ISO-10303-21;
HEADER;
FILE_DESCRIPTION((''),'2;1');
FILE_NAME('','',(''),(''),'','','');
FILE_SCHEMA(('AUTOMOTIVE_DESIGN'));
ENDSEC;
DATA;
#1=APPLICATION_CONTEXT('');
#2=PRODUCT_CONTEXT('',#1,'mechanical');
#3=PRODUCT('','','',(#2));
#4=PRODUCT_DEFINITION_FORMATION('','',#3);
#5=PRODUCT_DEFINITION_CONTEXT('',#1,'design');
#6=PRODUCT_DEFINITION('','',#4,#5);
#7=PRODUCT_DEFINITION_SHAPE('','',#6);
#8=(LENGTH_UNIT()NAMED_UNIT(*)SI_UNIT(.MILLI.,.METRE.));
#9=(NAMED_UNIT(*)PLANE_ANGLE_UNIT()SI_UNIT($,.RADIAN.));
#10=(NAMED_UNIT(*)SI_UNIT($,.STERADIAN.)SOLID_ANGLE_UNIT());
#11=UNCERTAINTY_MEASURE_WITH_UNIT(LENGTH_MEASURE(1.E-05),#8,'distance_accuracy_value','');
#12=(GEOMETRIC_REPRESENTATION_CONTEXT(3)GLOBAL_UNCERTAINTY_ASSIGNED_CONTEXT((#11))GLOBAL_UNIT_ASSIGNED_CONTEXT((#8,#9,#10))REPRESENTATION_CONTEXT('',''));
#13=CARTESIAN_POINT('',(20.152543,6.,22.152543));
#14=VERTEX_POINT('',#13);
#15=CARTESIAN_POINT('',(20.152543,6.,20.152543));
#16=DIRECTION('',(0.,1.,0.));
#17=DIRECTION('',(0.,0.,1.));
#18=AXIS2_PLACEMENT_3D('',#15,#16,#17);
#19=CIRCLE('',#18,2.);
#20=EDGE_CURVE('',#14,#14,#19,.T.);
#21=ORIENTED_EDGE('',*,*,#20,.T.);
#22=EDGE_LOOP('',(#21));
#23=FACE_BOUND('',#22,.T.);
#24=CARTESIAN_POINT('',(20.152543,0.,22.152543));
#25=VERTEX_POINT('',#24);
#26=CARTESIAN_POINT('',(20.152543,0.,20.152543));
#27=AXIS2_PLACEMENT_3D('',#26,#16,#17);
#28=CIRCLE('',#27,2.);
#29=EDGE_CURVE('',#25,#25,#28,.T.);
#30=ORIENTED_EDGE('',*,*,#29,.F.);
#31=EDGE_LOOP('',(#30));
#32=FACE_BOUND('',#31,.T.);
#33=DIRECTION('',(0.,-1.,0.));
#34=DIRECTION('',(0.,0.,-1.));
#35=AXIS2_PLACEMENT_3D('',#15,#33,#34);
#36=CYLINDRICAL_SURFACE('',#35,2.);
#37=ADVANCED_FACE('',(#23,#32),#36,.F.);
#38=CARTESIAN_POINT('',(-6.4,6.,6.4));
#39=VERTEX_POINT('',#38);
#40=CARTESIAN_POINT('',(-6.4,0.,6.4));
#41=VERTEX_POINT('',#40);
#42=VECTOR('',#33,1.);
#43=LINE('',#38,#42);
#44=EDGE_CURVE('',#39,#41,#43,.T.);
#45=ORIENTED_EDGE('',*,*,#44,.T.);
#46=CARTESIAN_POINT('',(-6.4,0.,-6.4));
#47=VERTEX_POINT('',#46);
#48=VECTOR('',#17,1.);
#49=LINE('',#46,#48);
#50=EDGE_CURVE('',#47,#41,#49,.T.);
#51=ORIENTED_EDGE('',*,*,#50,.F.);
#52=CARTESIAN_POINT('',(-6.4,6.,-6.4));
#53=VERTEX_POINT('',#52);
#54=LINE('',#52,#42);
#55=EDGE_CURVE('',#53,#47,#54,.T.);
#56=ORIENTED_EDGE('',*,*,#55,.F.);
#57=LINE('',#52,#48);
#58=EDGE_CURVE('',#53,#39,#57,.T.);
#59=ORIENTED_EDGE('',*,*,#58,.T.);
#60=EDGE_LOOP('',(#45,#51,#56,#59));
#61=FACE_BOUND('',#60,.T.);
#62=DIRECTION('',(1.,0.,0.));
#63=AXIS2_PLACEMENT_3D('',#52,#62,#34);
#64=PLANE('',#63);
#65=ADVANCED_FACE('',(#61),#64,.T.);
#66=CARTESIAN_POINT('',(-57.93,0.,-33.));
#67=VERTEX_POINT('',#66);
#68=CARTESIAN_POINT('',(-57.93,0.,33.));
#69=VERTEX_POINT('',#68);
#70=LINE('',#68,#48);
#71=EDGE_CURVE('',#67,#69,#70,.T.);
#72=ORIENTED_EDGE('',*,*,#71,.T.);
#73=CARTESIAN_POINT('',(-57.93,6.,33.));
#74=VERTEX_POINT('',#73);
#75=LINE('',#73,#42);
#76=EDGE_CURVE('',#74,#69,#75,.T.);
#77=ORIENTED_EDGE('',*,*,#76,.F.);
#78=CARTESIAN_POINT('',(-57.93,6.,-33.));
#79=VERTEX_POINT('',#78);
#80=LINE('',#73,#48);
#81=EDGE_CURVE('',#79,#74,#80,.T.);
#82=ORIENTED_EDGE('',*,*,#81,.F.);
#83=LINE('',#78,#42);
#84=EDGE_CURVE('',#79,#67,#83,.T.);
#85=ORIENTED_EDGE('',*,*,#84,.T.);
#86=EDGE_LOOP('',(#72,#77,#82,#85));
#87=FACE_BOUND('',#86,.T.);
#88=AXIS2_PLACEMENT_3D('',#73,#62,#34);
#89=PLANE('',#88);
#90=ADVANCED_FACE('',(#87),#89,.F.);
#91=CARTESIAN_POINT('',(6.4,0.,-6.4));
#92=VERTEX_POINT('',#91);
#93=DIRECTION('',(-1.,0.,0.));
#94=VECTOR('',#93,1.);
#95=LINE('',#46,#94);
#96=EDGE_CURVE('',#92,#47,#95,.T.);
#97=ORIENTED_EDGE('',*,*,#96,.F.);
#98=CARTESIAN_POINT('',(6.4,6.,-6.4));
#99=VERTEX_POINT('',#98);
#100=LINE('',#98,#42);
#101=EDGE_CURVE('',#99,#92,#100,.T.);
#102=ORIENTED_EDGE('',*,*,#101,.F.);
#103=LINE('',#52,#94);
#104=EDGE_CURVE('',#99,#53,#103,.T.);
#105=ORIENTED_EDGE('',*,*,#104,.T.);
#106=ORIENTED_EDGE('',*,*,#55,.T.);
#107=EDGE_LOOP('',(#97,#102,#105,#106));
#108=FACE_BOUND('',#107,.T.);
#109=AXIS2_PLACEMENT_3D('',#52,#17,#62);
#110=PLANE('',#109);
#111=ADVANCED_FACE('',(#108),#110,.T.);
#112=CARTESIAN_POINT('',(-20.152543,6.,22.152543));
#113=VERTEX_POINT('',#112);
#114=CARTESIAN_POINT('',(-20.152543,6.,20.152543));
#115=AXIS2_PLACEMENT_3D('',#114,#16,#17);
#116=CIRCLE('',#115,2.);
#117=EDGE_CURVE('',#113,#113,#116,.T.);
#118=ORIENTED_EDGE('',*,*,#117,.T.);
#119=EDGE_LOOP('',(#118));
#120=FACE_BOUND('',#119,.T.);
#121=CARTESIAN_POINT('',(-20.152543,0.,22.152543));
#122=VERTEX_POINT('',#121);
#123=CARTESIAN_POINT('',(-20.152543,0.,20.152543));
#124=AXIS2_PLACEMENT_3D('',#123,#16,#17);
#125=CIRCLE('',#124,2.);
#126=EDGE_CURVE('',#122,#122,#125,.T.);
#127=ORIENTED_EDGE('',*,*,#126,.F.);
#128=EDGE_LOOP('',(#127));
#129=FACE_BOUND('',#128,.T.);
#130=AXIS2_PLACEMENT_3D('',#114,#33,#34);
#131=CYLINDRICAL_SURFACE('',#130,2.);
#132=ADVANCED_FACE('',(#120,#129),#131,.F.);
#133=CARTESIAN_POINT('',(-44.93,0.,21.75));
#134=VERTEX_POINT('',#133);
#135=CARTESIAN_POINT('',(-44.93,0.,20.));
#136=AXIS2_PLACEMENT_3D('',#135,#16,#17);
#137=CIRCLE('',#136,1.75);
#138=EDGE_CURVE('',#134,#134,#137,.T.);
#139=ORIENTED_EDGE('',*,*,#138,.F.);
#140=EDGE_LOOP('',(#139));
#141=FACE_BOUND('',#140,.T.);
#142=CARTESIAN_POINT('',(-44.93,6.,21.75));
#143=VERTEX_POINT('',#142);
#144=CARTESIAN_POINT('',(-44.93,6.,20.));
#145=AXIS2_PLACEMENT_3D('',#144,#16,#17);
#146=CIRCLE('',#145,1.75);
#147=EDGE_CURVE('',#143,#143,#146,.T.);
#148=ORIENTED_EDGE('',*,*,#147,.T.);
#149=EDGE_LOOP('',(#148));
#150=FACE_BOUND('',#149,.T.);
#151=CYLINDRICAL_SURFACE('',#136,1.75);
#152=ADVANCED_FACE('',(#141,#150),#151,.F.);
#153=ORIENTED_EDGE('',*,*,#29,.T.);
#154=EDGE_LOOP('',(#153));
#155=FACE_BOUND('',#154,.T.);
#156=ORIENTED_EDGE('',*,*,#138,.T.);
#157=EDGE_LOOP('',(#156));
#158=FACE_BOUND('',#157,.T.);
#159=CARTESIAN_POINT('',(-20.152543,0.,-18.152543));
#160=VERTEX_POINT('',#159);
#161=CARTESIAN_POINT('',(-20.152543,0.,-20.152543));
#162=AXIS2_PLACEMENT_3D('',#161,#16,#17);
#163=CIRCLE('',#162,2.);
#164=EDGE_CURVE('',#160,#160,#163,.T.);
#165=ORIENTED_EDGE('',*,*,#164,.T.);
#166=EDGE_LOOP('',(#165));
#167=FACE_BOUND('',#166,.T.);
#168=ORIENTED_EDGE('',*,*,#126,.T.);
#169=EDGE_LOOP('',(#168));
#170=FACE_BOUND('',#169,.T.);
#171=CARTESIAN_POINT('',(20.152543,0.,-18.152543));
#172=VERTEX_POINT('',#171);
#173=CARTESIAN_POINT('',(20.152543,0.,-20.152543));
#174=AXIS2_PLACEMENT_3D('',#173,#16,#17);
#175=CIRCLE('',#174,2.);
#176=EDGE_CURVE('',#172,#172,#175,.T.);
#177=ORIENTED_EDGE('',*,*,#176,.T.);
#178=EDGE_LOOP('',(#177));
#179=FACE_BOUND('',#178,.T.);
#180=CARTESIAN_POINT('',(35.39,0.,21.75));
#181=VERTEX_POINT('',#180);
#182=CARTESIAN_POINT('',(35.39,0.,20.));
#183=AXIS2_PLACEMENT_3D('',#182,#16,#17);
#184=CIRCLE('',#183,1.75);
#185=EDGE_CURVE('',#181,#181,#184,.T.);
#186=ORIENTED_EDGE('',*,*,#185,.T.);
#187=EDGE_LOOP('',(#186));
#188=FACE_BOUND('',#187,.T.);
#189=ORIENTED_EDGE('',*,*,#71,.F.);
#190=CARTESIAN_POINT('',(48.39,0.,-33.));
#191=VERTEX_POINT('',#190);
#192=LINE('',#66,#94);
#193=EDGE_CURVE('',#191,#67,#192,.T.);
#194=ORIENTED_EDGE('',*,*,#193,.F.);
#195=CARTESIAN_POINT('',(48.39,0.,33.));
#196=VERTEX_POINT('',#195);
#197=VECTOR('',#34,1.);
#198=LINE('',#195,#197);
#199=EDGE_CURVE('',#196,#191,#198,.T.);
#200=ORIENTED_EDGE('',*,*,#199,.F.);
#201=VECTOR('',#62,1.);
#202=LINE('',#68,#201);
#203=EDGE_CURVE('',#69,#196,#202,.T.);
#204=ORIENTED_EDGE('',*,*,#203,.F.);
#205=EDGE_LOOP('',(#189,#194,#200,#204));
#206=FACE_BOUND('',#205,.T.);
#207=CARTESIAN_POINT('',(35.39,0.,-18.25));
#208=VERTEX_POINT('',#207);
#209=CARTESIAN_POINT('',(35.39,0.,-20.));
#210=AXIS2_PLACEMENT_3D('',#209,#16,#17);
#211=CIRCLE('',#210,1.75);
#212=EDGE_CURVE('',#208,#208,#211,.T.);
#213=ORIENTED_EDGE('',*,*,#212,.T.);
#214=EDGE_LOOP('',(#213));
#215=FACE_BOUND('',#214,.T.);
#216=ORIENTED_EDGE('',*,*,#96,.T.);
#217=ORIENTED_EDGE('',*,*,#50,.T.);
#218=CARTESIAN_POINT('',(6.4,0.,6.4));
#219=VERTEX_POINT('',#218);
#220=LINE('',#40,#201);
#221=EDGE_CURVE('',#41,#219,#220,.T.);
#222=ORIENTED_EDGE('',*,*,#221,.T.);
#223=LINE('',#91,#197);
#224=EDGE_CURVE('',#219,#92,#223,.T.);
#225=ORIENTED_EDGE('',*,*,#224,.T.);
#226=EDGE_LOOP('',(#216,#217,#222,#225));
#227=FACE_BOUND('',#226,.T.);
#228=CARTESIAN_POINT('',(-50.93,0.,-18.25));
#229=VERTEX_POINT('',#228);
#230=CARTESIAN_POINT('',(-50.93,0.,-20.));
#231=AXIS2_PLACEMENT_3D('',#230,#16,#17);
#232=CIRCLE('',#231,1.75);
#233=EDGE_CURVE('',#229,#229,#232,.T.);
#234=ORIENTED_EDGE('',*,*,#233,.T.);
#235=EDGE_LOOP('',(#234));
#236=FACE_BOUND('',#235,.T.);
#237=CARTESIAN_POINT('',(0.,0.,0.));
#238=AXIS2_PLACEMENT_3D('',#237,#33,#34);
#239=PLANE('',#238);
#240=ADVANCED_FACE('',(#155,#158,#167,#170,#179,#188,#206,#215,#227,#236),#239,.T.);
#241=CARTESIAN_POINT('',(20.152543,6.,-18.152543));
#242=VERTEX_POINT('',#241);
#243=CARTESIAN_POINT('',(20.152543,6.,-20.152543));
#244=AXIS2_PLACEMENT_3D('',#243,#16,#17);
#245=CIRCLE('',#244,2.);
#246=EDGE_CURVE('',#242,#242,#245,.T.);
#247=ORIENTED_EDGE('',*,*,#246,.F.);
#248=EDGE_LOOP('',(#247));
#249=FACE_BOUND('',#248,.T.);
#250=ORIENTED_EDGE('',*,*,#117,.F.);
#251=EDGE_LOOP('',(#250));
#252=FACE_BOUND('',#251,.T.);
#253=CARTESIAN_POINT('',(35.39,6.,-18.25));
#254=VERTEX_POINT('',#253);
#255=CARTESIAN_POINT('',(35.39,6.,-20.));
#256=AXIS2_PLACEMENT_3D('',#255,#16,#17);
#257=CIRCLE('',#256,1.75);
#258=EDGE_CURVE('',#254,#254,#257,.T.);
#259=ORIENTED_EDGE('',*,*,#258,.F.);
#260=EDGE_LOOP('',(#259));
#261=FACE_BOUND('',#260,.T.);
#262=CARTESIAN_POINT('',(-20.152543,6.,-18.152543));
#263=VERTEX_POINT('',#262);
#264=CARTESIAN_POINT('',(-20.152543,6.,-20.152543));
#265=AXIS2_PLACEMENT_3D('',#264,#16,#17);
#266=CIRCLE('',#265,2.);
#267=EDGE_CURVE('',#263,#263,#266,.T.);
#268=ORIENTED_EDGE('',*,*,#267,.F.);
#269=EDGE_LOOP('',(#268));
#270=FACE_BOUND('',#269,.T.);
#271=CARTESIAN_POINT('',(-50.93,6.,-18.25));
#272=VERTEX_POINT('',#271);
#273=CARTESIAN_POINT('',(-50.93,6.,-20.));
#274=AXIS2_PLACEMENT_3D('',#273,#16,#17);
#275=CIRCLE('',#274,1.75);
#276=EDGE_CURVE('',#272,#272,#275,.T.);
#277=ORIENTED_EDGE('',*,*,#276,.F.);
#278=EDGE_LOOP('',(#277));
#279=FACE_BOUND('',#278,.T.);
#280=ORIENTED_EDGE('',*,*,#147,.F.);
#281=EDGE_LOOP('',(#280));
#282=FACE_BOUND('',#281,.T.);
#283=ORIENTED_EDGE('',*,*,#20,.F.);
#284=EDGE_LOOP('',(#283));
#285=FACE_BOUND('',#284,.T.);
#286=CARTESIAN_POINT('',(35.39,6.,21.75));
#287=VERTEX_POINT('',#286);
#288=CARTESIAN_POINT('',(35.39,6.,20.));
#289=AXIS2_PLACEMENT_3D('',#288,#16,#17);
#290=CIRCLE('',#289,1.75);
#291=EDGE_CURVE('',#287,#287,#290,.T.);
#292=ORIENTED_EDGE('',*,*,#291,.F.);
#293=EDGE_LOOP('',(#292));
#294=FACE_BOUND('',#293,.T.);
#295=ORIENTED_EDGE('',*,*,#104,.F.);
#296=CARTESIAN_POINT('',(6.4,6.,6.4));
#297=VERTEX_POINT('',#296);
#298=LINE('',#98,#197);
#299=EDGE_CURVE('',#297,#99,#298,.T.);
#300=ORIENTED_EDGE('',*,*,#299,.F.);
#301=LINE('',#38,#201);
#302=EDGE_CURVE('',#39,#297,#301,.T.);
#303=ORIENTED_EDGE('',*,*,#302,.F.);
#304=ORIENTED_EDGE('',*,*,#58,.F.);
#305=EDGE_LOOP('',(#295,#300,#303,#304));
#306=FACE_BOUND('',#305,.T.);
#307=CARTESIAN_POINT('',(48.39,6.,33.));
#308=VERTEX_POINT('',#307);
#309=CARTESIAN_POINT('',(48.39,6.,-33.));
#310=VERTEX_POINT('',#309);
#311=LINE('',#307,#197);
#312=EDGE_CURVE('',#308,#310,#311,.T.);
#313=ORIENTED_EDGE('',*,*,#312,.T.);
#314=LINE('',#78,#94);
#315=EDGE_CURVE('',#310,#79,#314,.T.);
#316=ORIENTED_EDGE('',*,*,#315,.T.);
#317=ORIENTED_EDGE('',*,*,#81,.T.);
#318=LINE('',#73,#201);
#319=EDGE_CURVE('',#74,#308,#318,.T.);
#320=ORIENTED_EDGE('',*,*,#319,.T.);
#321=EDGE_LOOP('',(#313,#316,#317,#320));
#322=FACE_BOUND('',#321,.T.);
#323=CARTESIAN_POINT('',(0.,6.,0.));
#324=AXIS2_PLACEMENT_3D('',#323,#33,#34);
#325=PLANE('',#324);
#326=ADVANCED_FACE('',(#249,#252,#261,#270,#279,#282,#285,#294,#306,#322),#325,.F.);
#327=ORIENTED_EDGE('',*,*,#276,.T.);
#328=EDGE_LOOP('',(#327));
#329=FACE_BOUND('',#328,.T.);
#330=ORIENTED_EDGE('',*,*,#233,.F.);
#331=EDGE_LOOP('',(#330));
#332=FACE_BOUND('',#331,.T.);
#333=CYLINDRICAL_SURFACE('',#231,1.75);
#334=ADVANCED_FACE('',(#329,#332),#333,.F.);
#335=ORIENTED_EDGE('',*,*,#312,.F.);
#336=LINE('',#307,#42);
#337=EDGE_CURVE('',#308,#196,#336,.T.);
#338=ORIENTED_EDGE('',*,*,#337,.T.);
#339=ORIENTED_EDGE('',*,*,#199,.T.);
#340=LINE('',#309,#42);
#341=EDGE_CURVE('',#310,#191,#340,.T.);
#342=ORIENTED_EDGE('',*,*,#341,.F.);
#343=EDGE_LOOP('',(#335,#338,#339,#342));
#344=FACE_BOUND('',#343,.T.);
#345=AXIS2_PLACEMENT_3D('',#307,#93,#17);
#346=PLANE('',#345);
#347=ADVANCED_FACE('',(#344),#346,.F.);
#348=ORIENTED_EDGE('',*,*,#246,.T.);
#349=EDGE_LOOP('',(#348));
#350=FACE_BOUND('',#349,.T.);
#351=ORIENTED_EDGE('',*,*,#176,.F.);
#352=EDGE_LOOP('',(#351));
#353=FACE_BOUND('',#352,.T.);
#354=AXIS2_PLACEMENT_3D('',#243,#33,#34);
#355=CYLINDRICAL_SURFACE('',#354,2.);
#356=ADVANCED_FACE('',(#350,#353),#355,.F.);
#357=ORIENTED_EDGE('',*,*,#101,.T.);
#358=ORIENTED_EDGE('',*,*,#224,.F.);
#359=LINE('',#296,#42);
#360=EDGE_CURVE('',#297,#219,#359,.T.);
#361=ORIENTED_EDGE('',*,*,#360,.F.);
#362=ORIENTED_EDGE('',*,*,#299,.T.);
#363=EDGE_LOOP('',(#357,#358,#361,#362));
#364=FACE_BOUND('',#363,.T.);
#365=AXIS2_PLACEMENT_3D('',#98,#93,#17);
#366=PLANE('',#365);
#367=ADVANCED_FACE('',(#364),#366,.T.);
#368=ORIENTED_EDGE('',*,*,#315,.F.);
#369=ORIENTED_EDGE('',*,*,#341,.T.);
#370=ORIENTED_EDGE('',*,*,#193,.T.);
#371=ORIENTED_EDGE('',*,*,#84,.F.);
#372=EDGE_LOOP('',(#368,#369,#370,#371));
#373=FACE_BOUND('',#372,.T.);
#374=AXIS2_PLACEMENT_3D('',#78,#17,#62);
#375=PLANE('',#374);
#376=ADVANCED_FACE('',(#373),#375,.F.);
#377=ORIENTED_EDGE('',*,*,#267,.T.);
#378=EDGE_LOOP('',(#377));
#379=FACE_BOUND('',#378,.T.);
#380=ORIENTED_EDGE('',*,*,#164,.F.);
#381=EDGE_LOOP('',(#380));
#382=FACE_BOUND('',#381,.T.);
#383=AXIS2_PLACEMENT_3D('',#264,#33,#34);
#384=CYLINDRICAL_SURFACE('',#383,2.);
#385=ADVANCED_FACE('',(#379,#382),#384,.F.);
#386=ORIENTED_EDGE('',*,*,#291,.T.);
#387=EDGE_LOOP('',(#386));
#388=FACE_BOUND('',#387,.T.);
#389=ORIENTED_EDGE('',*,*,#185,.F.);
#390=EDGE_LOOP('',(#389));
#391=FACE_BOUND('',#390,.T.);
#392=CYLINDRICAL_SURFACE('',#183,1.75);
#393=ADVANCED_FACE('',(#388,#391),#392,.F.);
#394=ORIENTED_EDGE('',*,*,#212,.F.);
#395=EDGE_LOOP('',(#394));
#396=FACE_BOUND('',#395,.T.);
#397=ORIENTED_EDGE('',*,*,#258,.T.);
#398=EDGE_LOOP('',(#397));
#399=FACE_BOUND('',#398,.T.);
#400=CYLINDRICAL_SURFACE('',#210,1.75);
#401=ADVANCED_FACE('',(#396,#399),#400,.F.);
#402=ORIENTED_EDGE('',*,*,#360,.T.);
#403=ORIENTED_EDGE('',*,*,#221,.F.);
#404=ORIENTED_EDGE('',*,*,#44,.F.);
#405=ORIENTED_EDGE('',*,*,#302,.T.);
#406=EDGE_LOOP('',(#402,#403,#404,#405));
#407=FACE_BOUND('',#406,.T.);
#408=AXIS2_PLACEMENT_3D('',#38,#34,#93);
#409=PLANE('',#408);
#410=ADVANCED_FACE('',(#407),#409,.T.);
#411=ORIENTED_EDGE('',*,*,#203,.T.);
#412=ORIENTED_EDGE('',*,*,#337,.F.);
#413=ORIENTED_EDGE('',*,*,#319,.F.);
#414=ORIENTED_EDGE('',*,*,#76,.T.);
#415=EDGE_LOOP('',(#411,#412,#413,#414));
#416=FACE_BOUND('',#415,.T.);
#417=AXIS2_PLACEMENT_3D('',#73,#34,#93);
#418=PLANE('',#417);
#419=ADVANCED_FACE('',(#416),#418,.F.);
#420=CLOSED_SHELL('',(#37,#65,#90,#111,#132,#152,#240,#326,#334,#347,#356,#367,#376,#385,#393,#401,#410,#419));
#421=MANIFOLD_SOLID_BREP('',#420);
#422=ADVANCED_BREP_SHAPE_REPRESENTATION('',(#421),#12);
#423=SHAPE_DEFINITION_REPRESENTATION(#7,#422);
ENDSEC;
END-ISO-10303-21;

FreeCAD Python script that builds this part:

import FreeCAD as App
import Part
import Sketcher


def add_polygon(sketch, points):
    """Adds a closed chain of lines whose ends are joined by coincident constraints."""
    first, n = sketch.GeometryCount, len(points)
    for a, b in zip(points, points[1:] + points[:1]):
        sketch.addGeometry(Part.LineSegment(App.Vector(*a, 0), App.Vector(*b, 0)), False)
    for i in range(n):
        sketch.addConstraint(Sketcher.Constraint("Coincident", first + i, 2, first + (i + 1) % n, 1))

doc = App.newDocument("Part")
body = doc.addObject("PartDesign::Body", "Body")

sketch1 = body.newObject("Sketcher::SketchObject", "Sketch")
sketch1.AttachmentSupport = (doc.getObject("XZ_Plane"), [""])
sketch1.MapMode = "FlatFace"
add_polygon(sketch1, [(-57.93, -33), (-57.93, 33), (48.39, 33), (48.39, -33)])
sketch1.addGeometry(Part.Circle(App.Vector(-20.152543, 20.152543, 0), App.Vector(0, 0, 1), 2), False)
sketch1.addGeometry(Part.Circle(App.Vector(20.152543, 20.152543, 0), App.Vector(0, 0, 1), 2), False)
sketch1.addGeometry(Part.Circle(App.Vector(-20.152543, -20.152543, 0), App.Vector(0, 0, 1), 2), False)
add_polygon(sketch1, [(6.4, 6.4), (-6.4, 6.4), (-6.4, -6.4), (6.4, -6.4)])
sketch1.addGeometry(Part.Circle(App.Vector(20.152543, -20.152543, 0), App.Vector(0, 0, 1), 2), False)
sketch1.addConstraint([
    Sketcher.Constraint("Vertical", 0),
    Sketcher.Constraint("Horizontal", 1),
    Sketcher.Constraint("Vertical", 2),
    Sketcher.Constraint("Horizontal", 3),
    Sketcher.Constraint("Horizontal", 7),
    Sketcher.Constraint("Vertical", 8),
    Sketcher.Constraint("Horizontal", 9),
    Sketcher.Constraint("Vertical", 10),
    Sketcher.Constraint("Equal", 4, 5),
    Sketcher.Constraint("Equal", 5, 6),
    Sketcher.Constraint("Equal", 6, 11),
    Sketcher.Constraint("Symmetric", 5, 3, 6, 3, -1, 1),
    Sketcher.Constraint("Symmetric", 4, 3, 11, 3, -1, 1),
    Sketcher.Constraint("Symmetric", 7, 2, 9, 2, -1, 1),
    Sketcher.Constraint("Symmetric", 4, 3, 5, 3, -2),
    Sketcher.Constraint("Equal", 9, 8),
    Sketcher.Constraint("Diameter", 4, 4.0),
    Sketcher.Constraint("DistanceY", 0, 1, 0, 2, 66.0),
    Sketcher.Constraint("DistanceX", 7, 2, 7, 1, 12.8),
    Sketcher.Constraint("DistanceY", -1, 1, 0, 2, 33.0),
    Sketcher.Constraint("DistanceX", 1, 1, 1, 2, 106.32),
    Sketcher.Constraint("DistanceX", 0, 2, -1, 1, 57.93),
    Sketcher.Constraint("DistanceX", 4, 3, -1, 1, 20.152543),
    Sketcher.Constraint("DistanceY", -1, 1, 4, 3, 20.152543),
])
pad1 = body.newObject("PartDesign::Pad", "Pad")
pad1.Profile = sketch1
pad1.Length = 6
pad1.Reversed = True

sketch2 = body.newObject("Sketcher::SketchObject", "Sketch001")
sketch2.AttachmentSupport = (doc.getObject("XZ_Plane"), [""])
sketch2.MapMode = "FlatFace"
sketch2.AttachmentOffset = App.Placement(App.Vector(0, 0, -6), App.Rotation())
sketch2.addGeometry([
    Part.Circle(App.Vector(-50.93, -20, 0), App.Vector(0, 0, 1), 1.75),
    Part.Circle(App.Vector(-44.93, 20, 0), App.Vector(0, 0, 1), 1.75),
    Part.Circle(App.Vector(35.39, 20, 0), App.Vector(0, 0, 1), 1.75),
    Part.Circle(App.Vector(35.39, -20, 0), App.Vector(0, 0, 1), 1.75),
], False)
sketch2.addConstraint([
    Sketcher.Constraint("Equal", 0, 1),
    Sketcher.Constraint("Equal", 1, 2),
    Sketcher.Constraint("Equal", 2, 3),
    Sketcher.Constraint("Symmetric", 2, 3, 3, 3, -1),
    Sketcher.Constraint("Horizontal", 1, 3, 2, 3),
    Sketcher.Constraint("Horizontal", 0, 3, 3, 3),
    Sketcher.Constraint("Diameter", 0, 3.5),
    Sketcher.Constraint("DistanceY", 0, 3, -1, 1, 20.0),
    Sketcher.Constraint("DistanceX", 0, 3, 1, 3, 6.0),
    Sketcher.Constraint("DistanceX", 0, 3, -1, 1, 50.93),
    Sketcher.Constraint("DistanceX", -1, 1, 2, 3, 35.39),
])
pocket1 = body.newObject("PartDesign::Pocket", "Pocket")
pocket1.Profile = sketch2
pocket1.Type = "ThroughAll"
pocket1.Reversed = True

doc.recompute()
